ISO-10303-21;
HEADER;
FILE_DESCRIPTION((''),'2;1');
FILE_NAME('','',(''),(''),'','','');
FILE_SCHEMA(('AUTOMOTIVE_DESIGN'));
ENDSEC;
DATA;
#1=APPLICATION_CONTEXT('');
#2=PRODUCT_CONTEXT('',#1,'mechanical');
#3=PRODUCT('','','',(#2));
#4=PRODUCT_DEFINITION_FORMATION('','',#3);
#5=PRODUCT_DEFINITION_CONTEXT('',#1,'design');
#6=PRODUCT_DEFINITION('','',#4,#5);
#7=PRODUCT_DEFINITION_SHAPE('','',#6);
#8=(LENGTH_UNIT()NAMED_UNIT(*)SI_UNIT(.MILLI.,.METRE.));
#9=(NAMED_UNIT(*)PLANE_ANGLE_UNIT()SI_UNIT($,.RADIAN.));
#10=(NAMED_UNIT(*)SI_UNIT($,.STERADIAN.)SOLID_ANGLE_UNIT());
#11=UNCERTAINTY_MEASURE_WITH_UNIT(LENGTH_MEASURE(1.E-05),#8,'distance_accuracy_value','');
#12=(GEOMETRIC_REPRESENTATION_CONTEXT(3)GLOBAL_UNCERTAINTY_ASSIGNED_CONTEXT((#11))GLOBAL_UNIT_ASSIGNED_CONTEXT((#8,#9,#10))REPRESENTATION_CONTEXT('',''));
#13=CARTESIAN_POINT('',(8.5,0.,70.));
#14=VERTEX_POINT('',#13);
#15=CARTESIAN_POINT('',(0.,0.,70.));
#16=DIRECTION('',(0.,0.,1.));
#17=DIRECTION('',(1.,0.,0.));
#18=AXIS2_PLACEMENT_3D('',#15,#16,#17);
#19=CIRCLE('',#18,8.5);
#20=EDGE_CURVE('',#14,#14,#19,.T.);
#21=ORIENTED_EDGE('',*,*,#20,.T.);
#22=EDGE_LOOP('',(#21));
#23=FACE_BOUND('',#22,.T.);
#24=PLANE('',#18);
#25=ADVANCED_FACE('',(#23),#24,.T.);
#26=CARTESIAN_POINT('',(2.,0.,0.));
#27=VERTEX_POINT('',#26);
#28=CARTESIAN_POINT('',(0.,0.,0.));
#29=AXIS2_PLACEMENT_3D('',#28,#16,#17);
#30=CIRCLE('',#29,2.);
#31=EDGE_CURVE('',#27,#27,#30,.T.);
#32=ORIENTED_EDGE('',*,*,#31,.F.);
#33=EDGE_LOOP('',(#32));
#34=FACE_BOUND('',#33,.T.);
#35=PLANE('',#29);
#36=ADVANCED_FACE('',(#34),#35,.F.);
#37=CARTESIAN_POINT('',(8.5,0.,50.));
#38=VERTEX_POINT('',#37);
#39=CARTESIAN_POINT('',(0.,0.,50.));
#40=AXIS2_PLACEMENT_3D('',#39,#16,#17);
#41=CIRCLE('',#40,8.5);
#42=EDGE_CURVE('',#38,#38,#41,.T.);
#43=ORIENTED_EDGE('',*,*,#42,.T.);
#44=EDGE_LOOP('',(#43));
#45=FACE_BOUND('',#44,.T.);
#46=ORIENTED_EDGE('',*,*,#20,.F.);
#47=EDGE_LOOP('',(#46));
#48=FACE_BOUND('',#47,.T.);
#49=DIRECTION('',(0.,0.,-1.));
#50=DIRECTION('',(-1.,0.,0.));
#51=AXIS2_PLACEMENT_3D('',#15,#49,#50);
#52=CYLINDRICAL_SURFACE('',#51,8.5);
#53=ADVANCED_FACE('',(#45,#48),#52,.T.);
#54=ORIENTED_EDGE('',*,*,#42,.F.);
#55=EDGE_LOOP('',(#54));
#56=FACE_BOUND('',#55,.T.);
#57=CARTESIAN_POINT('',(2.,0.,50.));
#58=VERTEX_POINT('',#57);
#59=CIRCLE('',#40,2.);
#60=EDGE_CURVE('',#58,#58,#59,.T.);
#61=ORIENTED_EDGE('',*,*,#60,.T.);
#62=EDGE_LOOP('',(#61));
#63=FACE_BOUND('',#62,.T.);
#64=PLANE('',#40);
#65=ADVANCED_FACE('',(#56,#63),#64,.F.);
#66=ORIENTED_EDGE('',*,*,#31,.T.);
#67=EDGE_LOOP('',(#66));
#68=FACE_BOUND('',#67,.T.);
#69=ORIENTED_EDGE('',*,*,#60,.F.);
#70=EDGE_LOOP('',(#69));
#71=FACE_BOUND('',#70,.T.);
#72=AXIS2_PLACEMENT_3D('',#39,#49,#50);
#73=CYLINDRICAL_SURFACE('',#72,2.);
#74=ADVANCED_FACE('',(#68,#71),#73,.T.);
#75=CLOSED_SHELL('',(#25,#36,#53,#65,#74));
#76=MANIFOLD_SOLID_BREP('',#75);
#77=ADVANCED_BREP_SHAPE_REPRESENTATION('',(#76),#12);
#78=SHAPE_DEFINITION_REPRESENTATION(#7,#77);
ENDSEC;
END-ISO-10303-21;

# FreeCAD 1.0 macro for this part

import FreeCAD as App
import Part
import Sketcher

doc = App.newDocument("Part")
body = doc.addObject("PartDesign::Body", "Body")

# Sketch on XY plane
sketch1 = doc.addObject("Sketcher::SketchObject", "Sketch")
body.addObject(sketch1)
sketch1.AttachmentSupport = (doc.XY_Plane, [""])
sketch1.MapMode = "FlatFace"
sketch1.addGeometry(Part.Circle(App.Vector(0, 0, 0), App.Vector(0, 0, 1), 2), False)
sketch1.addConstraint([
    Sketcher.Constraint("Coincident", 0, 3, -1, 1),
    Sketcher.Constraint("Diameter", 0, 4.0),
])
pad1 = doc.addObject("PartDesign::Pad", "Pad")
body.addObject(pad1)
pad1.Profile = sketch1
pad1.Length = 50

# Sketch on XY plane
sketch2 = doc.addObject("Sketcher::SketchObject", "Sketch001")
body.addObject(sketch2)
sketch2.AttachmentSupport = (doc.XY_Plane, [""])
sketch2.MapMode = "FlatFace"
sketch2.AttachmentOffset = App.Placement(App.Vector(0, 0, 50), App.Rotation())
sketch2.addGeometry(Part.Circle(App.Vector(0, 0, 0), App.Vector(0, 0, 1), 8), False)
sketch2.addConstraint([
    Sketcher.Constraint("Coincident", 0, 3, -1, 1),
    Sketcher.Constraint("Diameter", 0, 17.0),
])
pad2 = doc.addObject("PartDesign::Pad", "Pad001")
body.addObject(pad2)
pad2.Profile = sketch2
pad2.Length = 20

doc.recompute()
